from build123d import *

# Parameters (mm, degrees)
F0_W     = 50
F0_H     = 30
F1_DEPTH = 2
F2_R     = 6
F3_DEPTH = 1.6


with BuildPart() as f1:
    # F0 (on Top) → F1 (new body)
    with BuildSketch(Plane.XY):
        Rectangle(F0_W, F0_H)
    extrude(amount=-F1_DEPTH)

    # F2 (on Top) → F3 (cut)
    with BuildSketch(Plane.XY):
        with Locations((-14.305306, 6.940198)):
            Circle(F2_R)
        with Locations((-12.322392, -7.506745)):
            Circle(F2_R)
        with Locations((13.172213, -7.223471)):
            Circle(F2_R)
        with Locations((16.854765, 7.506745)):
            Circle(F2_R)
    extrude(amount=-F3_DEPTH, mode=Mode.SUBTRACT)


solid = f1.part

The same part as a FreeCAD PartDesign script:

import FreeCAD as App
import Part
import Sketcher
from FreeCAD import Vector

doc = App.newDocument("Part")
body = doc.addObject("PartDesign::Body", "Body")

sketch1 = body.newObject("Sketcher::SketchObject", "Sketch")
sketch1.AttachmentSupport = (doc.getObject("XY_Plane"), [""])
sketch1.MapMode = "FlatFace"
sketch1.addGeometry([
    Part.LineSegment(Vector(-25, 15, 0), Vector(-25, -15, 0)),
    Part.LineSegment(Vector(-25, -15, 0), Vector(25, -15, 0)),
    Part.LineSegment(Vector(25, -15, 0), Vector(25, 15, 0)),
    Part.LineSegment(Vector(25, 15, 0), Vector(-25, 15, 0)),
], False)
sketch1.addConstraint([
    Sketcher.Constraint("Coincident", 0, 2, 1, 1),
    Sketcher.Constraint("Coincident", 1, 2, 2, 1),
    Sketcher.Constraint("Coincident", 2, 2, 3, 1),
    Sketcher.Constraint("Coincident", 3, 2, 0, 1),
    Sketcher.Constraint("Vertical", 0),
    Sketcher.Constraint("Horizontal", 1),
    Sketcher.Constraint("Vertical", 2),
    Sketcher.Constraint("Horizontal", 3),
    Sketcher.Constraint("Symmetric", 0, 2, 2, 2, -1, 1),
    Sketcher.Constraint("DistanceX", 1, 1, 1, 2, 50.0),
    Sketcher.Constraint("DistanceY", 0, 2, 0, 1, 30.0),
])
pad1 = body.newObject("PartDesign::Pad", "Pad")
pad1.Profile = sketch1
pad1.Length = 2
pad1.Reversed = True

sketch2 = body.newObject("Sketcher::SketchObject", "Sketch001")
sketch2.AttachmentSupport = (doc.getObject("XY_Plane"), [""])
sketch2.MapMode = "FlatFace"
sketch2.addGeometry([
    Part.Circle(Vector(-14, 7, 0), Vector(0, 0, 1), 6),
    Part.Circle(Vector(-12, -8, 0), Vector(0, 0, 1), 6),
    Part.Circle(Vector(13, -7, 0), Vector(0, 0, 1), 6),
    Part.Circle(Vector(17, 8, 0), Vector(0, 0, 1), 6),
], False)
sketch2.addConstraint([
    Sketcher.Constraint("Equal", 0, 1),
    Sketcher.Constraint("Equal", 1, 2),
    Sketcher.Constraint("Equal", 2, 3),
    Sketcher.Constraint("Diameter", 0, 12.0),
    Sketcher.Constraint("DistanceY", 2, 3, -1, 1, 7.223471),
    Sketcher.Constraint("DistanceX", 0, 3, 2, 3, 27.477519),
    Sketcher.Constraint("DistanceY", 2, 3, 0, 3, 14.163669),
    Sketcher.Constraint("DistanceX", 0, 3, 3, 3, 31.160071),
    Sketcher.Constraint("DistanceY", 1, 3, 3, 3, 15.01349),
    Sketcher.Constraint("DistanceX", 0, 3, -1, 1, 14.305306),
    Sketcher.Constraint("DistanceX", 1, 3, -1, 1, 12.322392),
    Sketcher.Constraint("DistanceY", 1, 3, -1, 1, 7.506745),
])
pocket1 = body.newObject("PartDesign::Pocket", "Pocket")
pocket1.Profile = sketch2
pocket1.Length = 1.6

doc.recompute()
